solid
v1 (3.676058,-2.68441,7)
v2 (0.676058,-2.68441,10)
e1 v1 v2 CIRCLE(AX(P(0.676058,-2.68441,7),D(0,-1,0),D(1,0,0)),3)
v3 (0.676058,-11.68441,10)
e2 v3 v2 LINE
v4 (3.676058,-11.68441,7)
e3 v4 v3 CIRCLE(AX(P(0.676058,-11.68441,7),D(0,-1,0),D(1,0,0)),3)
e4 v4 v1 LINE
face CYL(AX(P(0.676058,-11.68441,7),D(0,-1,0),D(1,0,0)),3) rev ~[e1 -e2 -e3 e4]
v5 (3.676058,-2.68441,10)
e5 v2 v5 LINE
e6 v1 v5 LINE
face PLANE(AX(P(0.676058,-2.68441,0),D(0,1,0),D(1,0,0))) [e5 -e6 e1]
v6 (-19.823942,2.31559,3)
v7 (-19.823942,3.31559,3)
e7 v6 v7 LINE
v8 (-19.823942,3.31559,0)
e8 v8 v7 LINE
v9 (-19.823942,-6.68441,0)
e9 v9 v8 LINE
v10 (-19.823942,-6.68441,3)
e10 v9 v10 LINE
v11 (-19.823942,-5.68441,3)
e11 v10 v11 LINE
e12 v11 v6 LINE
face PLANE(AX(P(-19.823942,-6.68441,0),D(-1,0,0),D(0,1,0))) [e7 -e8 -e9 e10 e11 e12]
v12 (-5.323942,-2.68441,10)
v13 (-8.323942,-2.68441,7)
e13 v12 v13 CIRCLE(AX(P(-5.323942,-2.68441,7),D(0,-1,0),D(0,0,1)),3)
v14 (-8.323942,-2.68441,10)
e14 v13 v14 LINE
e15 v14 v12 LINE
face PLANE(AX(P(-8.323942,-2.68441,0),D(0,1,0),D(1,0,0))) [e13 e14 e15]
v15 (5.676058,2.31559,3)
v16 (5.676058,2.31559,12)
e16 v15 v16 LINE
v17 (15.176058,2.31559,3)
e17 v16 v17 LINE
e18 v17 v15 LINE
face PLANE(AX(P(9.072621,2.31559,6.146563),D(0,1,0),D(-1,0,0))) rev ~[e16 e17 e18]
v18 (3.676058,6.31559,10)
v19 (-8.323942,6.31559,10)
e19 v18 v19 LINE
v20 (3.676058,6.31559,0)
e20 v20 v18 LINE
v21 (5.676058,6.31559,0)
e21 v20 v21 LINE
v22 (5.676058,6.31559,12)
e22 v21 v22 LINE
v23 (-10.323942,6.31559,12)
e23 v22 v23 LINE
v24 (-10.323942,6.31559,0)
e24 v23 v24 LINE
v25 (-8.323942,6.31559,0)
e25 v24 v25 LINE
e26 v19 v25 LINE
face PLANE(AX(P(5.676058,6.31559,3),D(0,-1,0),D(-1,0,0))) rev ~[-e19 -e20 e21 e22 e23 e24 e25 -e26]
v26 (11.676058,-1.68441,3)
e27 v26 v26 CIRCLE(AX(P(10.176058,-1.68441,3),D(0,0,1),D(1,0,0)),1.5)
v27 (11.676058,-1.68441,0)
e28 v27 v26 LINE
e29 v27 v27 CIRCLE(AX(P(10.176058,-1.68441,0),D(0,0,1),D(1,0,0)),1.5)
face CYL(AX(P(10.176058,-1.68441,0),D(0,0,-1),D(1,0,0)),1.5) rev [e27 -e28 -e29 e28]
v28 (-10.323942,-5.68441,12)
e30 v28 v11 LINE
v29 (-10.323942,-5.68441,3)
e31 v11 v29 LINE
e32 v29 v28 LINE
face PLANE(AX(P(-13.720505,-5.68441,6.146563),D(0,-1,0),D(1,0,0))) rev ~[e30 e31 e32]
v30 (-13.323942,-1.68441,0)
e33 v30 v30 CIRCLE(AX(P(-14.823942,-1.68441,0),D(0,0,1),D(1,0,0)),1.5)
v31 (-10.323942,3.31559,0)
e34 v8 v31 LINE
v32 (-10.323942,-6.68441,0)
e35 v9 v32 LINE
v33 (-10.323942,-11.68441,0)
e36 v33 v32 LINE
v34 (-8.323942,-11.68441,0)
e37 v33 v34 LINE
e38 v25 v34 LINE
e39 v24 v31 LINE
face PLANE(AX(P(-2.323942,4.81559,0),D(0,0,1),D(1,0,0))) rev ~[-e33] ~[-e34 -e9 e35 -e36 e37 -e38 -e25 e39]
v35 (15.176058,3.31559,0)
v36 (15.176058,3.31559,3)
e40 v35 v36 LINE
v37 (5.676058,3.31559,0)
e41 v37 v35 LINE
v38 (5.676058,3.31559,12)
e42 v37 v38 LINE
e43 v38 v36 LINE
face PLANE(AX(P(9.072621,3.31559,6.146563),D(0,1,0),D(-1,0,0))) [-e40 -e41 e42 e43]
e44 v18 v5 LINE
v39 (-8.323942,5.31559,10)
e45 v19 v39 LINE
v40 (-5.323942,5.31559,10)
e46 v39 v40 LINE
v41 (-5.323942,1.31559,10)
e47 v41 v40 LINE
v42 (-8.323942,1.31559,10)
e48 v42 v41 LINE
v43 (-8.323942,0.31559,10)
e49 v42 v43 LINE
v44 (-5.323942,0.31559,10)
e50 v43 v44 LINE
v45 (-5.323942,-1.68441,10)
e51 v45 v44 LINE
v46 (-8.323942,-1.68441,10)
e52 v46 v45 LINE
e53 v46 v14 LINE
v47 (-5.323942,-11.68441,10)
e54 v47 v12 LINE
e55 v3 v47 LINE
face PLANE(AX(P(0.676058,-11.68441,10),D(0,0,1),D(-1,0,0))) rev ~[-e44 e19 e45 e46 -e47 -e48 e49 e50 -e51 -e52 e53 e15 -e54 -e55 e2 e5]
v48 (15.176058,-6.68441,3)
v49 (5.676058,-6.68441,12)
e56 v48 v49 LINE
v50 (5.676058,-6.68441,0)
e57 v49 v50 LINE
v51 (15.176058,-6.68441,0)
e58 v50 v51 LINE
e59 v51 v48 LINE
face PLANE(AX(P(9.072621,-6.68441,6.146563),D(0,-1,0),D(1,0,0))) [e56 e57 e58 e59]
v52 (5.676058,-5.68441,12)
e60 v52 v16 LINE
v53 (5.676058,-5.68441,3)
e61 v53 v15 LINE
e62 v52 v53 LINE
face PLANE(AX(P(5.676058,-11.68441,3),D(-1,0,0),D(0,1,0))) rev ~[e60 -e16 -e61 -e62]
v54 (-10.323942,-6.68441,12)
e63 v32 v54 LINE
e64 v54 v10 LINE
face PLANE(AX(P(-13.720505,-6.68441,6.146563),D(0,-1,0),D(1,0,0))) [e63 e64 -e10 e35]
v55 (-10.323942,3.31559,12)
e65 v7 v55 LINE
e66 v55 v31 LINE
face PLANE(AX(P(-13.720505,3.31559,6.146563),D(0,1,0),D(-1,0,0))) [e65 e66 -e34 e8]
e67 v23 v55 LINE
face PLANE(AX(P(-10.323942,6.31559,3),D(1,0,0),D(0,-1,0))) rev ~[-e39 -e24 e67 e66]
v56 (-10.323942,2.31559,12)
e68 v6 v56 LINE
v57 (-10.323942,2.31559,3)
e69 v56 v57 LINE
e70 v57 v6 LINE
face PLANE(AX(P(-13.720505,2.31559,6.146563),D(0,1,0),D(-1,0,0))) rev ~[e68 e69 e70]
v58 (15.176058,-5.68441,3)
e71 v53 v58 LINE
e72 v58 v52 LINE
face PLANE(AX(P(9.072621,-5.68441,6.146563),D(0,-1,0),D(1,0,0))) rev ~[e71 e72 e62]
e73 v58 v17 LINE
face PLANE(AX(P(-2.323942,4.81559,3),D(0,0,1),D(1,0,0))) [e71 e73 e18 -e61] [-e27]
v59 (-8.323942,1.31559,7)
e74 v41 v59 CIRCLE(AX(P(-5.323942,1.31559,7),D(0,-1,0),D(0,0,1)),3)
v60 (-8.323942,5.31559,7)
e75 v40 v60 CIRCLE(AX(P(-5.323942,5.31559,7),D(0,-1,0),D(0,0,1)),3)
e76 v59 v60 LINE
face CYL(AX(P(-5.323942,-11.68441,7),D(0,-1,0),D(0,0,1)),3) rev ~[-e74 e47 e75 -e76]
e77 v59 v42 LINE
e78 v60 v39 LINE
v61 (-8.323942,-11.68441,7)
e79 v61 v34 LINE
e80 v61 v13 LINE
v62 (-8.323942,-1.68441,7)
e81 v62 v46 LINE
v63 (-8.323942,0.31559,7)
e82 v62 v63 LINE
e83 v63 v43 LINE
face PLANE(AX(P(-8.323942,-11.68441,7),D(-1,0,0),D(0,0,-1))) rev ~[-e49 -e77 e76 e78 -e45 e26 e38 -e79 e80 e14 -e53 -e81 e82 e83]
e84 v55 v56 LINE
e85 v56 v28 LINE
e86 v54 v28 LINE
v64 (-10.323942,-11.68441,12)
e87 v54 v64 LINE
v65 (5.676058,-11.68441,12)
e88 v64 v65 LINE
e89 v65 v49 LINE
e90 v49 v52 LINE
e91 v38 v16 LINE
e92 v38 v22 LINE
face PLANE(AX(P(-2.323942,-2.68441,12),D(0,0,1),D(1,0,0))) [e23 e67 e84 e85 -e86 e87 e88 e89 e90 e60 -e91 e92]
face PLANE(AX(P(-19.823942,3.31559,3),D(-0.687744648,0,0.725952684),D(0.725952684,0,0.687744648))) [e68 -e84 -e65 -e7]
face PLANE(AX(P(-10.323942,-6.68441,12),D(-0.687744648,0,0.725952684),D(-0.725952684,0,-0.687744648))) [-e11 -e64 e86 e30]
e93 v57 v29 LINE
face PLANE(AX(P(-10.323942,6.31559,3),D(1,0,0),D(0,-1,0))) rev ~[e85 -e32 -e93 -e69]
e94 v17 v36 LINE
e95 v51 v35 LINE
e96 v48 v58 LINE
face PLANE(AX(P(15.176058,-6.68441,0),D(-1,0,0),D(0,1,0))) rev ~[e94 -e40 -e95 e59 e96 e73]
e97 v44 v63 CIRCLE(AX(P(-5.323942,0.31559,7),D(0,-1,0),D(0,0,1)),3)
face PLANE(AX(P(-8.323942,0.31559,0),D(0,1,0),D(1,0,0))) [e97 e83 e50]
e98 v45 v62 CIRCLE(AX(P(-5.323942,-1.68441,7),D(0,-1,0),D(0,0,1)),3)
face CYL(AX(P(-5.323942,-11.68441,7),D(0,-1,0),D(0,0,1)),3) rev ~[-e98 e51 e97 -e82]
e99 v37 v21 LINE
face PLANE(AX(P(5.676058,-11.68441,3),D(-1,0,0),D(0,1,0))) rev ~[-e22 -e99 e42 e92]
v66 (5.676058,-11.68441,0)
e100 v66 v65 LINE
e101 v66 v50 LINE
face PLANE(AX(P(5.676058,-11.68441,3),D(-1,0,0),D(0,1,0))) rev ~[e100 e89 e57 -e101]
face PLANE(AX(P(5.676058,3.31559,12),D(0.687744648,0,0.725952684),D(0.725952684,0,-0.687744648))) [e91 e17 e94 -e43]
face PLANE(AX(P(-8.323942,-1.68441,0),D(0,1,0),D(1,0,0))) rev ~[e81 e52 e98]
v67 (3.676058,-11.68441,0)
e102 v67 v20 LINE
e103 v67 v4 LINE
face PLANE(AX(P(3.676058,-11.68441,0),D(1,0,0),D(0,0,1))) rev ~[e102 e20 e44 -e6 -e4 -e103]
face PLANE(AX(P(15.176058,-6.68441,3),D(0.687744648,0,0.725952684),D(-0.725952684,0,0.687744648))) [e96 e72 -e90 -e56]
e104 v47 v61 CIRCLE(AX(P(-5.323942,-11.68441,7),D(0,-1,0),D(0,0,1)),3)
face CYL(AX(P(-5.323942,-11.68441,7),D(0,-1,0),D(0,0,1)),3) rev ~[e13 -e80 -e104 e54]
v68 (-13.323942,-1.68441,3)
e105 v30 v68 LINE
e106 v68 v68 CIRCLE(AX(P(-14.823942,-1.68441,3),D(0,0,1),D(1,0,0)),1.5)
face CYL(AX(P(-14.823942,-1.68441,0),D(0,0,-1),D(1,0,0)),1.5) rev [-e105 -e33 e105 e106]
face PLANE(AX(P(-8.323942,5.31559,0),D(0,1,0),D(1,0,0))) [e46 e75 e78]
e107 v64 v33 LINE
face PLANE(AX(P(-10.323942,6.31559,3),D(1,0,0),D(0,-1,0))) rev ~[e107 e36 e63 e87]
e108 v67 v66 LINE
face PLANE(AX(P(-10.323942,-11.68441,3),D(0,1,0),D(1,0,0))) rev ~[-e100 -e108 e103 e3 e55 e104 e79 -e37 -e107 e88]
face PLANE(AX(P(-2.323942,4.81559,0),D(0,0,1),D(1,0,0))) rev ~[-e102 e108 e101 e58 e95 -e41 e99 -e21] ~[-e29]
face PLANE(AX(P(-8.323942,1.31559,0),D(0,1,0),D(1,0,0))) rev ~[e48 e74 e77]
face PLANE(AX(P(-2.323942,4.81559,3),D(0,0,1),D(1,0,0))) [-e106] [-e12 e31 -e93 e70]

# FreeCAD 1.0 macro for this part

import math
import FreeCAD as App
import Part
import Sketcher

V = App.Vector
Q = App.Units.Quantity


def add_polygon(sketch, points):
    """Adds a closed chain of lines whose ends are joined by coincident constraints."""
    first, n = sketch.GeometryCount, len(points)
    for a, b in zip(points, points[1:] + points[:1]):
        sketch.addGeometry(Part.LineSegment(App.Vector(*a, 0), App.Vector(*b, 0)), False)
    for i in range(n):
        sketch.addConstraint(Sketcher.Constraint("Coincident", first + i, 2, first + (i + 1) % n, 1))

doc = App.newDocument("Part")
body = doc.addObject("PartDesign::Body", "Body")

# Sketch on XY plane
sketch1 = body.newObject("Sketcher::SketchObject", "Sketch")
sketch1.AttachmentSupport = (doc.getObject("XY_Plane"), [""])
sketch1.MapMode = "FlatFace"
add_polygon(sketch1, [(-10.3, 6.3), (-10.3, 3.3), (-19.8, 3.3), (-19.8, -6.7), (-10.3, -6.7), (-10.3, -11.7), (5.7, -11.7), (5.7, -6.7), (15.2, -6.7), (15.2, 3.3), (5.7, 3.3), (5.7, 6.3)])  # lines 0-11
sketch1.addGeometry(Part.Circle(V(-14.8, -1.7, 0), V(0, 0, 1), 1.5), False)  # 12
sketch1.addGeometry(Part.Circle(V(10.2, -1.7, 0), V(0, 0, 1), 1.5), False)  # 13
sketch1.addConstraint([
    Sketcher.Constraint("Vertical", 0),
    Sketcher.Constraint("Horizontal", 1),
    Sketcher.Constraint("Vertical", 2),
    Sketcher.Constraint("Horizontal", 3),
    Sketcher.Constraint("Vertical", 4),
    Sketcher.Constraint("Horizontal", 5),
    Sketcher.Constraint("Vertical", 6),
    Sketcher.Constraint("Horizontal", 7),
    Sketcher.Constraint("Vertical", 8),
    Sketcher.Constraint("Horizontal", 9),
    Sketcher.Constraint("Vertical", 10),
    Sketcher.Constraint("Horizontal", 11),
    Sketcher.Constraint("Equal", 12, 13),
    Sketcher.Constraint("Horizontal", 12, 3, 13, 3),
    Sketcher.Constraint("Horizontal", 3, 2, 6, 2),
    Sketcher.Constraint("Horizontal", 1, 2, 8, 2),
    Sketcher.Constraint("Vertical", 0, 2, 3, 2),
    Sketcher.Constraint("Vertical", 6, 2, 9, 2),
    Sketcher.Constraint("Equal", 3, 7),
    Sketcher.Constraint("Diameter", 12, Q("3 mm")),
    Sketcher.Constraint("DistanceX", 5, 1, 5, 2, Q("16 mm")),
    Sketcher.Constraint("DistanceY", 0, 2, 0, 1, Q("3 mm")),
    Sketcher.Constraint("DistanceY", 2, 2, 2, 1, Q("10 mm")),
    Sketcher.Constraint("DistanceY", 4, 2, 4, 1, Q("5 mm")),
    Sketcher.Constraint("DistanceX", 1, 2, 1, 1, Q("9.5 mm")),
    Sketcher.Constraint("DistanceX", 12, 3, 13, 3, Q("25 mm")),
    Sketcher.Constraint("DistanceY", 12, 3, 0, 2, Q("5 mm")),
    Sketcher.Constraint("DistanceX", 1, 2, 12, 3, Q("5 mm")),
    Sketcher.Constraint("DistanceY", 12, 3, -1, 1, Q("1.68441 mm")),
    Sketcher.Constraint("DistanceX", 12, 3, -1, 1, Q("14.823942 mm")),
])
pad1 = body.newObject("PartDesign::Pad", "Pad")
pad1.Profile = sketch1
pad1.Length = 3

# Sketch on XY plane
sketch2 = body.newObject("Sketcher::SketchObject", "Sketch001")
sketch2.AttachmentSupport = (doc.getObject("XY_Plane"), [""])
sketch2.MapMode = "FlatFace"
sketch2.AttachmentOffset = App.Placement(V(0, 0, 3), App.Rotation())
add_polygon(sketch2, [(-10, -12), (6, -12), (6, 6), (-10, 6)])  # lines 0-3
sketch2.addConstraint([
    Sketcher.Constraint("Horizontal", 0),
    Sketcher.Constraint("Vertical", 1),
    Sketcher.Constraint("Horizontal", 2),
    Sketcher.Constraint("Vertical", 3),
    Sketcher.Constraint("DistanceX", 0, 1, 0, 2, Q("16 mm")),
    Sketcher.Constraint("DistanceY", 1, 1, 1, 2, Q("18 mm")),
    Sketcher.Constraint("DistanceY", 0, 2, -1, 1, Q("11.68441 mm")),
    Sketcher.Constraint("DistanceX", -1, 1, 0, 2, Q("5.676058 mm")),
])
pad2 = body.newObject("PartDesign::Pad", "Pad001")
pad2.Profile = sketch2
pad2.Length = 9

# Sketch on XZ plane
sketch3 = body.newObject("Sketcher::SketchObject", "Sketch002")
sketch3.AttachmentSupport = (doc.getObject("XZ_Plane"), [""])
sketch3.MapMode = "FlatFace"
sketch3.AttachmentOffset = App.Placement(V(0, 0, 11.68441), App.Rotation())
sketch3.addGeometry([
    Part.ArcOfCircle(Part.Circle(V(-5.3, 7, 0), V(0, 0, 1), 3), math.radians(90), math.radians(180)),  # 0
    Part.LineSegment(V(-8.3, 7, 0), V(-8.3, 0, 0)),  # 1
    Part.LineSegment(V(-8.3, 0, 0), V(3.7, 0, 0)),  # 2
    Part.LineSegment(V(3.7, 0, 0), V(3.7, 7, 0)),  # 3
    Part.ArcOfCircle(Part.Circle(V(0.7, 7, 0), V(0, 0, 1), 3), math.radians(0), math.radians(90)),  # 4
    Part.LineSegment(V(0.7, 10, 0), V(-5.3, 10, 0)),  # 5
], False)
sketch3.addConstraint([
    Sketcher.Constraint("Tangent", 0, 2, 1, 1),
    Sketcher.Constraint("Coincident", 1, 2, 2, 1),
    Sketcher.Constraint("Coincident", 2, 2, 3, 1),
    Sketcher.Constraint("Tangent", 3, 2, 4, 1),
    Sketcher.Constraint("Tangent", 4, 2, 5, 1),
    Sketcher.Constraint("Tangent", 5, 2, 0, 1),
    Sketcher.Constraint("Vertical", 1),
    Sketcher.Constraint("Horizontal", 2),
    Sketcher.Constraint("Vertical", 3),
    Sketcher.Constraint("Horizontal", 5),
    Sketcher.Constraint("Equal", 0, 4),
    Sketcher.Constraint("PointOnObject", 1, 2, -1),
    Sketcher.Constraint("Radius", 0, Q("3 mm")),
    Sketcher.Constraint("DistanceX", 2, 1, 2, 2, Q("12 mm")),
    Sketcher.Constraint("DistanceY", 1, 2, 1, 1, Q("7 mm")),
    Sketcher.Constraint("DistanceX", 0, 3, -1, 1, Q("5.323942 mm")),
])
pocket1 = body.newObject("PartDesign::Pocket", "Pocket")
pocket1.Profile = sketch3
pocket1.Type = "ThroughAll"

# Sketch on XZ plane
sketch4 = body.newObject("Sketcher::SketchObject", "Sketch003")
sketch4.AttachmentSupport = (doc.getObject("XZ_Plane"), [""])
sketch4.MapMode = "FlatFace"
sketch4.AttachmentOffset = App.Placement(V(0, 0, 6.68441), App.Rotation())
add_polygon(sketch4, [(-10, 12), (-20, 3), (-10, 3)])  # lines 0-2
sketch4.addConstraint([
    Sketcher.Constraint("Horizontal", 1),
    Sketcher.Constraint("Vertical", 2),
    Sketcher.Constraint("DistanceY", 2, 1, 2, 2, Q("9 mm")),
    Sketcher.Constraint("DistanceX", 1, 1, 1, 2, Q("9.5 mm")),
    Sketcher.Constraint("DistanceY", -1, 1, 0, 2, Q("3 mm")),
    Sketcher.Constraint("DistanceX", 0, 2, -1, 1, Q("19.823942 mm")),
])
pad3 = body.newObject("PartDesign::Pad", "Pad002")
pad3.Profile = sketch4
pad3.Length = 1
pad3.Reversed = True

# Sketch on XZ plane
sketch5 = body.newObject("Sketcher::SketchObject", "Sketch004")
sketch5.AttachmentSupport = (doc.getObject("XZ_Plane"), [""])
sketch5.MapMode = "FlatFace"
sketch5.AttachmentOffset = App.Placement(V(0, 0, -3.31559), App.Rotation())
add_polygon(sketch5, [(-10, 3), (-20, 3), (-10, 12)])  # lines 0-2
sketch5.addConstraint([
    Sketcher.Constraint("Horizontal", 0),
    Sketcher.Constraint("Vertical", 2),
    Sketcher.Constraint("DistanceY", 2, 2, 2, 1, Q("9 mm")),
    Sketcher.Constraint("DistanceX", 0, 2, 0, 1, Q("9.5 mm")),
    Sketcher.Constraint("DistanceY", -1, 1, 0, 2, Q("3 mm")),
    Sketcher.Constraint("DistanceX", 0, 2, -1, 1, Q("19.823942 mm")),
])
pad4 = body.newObject("PartDesign::Pad", "Pad003")
pad4.Profile = sketch5
pad4.Length = 1

# Sketch on XZ plane
sketch6 = body.newObject("Sketcher::SketchObject", "Sketch005")
sketch6.AttachmentSupport = (doc.getObject("XZ_Plane"), [""])
sketch6.MapMode = "FlatFace"
sketch6.AttachmentOffset = App.Placement(V(0, 0, -3.31559), App.Rotation())
add_polygon(sketch6, [(6, 12), (15, 3), (6, 3)])  # lines 0-2
sketch6.addConstraint([
    Sketcher.Constraint("Horizontal", 1),
    Sketcher.Constraint("Vertical", 2),
    Sketcher.Constraint("DistanceY", 2, 1, 2, 2, Q("9 mm")),
    Sketcher.Constraint("DistanceX", 1, 2, 1, 1, Q("9.5 mm")),
    Sketcher.Constraint("DistanceY", -1, 1, 0, 2, Q("3 mm")),
    Sketcher.Constraint("DistanceX", -1, 1, 0, 2, Q("15.176058 mm")),
])
pad5 = body.newObject("PartDesign::Pad", "Pad004")
pad5.Profile = sketch6
pad5.Length = 1

# Sketch on XZ plane
sketch7 = body.newObject("Sketcher::SketchObject", "Sketch006")
sketch7.AttachmentSupport = (doc.getObject("XZ_Plane"), [""])
sketch7.MapMode = "FlatFace"
sketch7.AttachmentOffset = App.Placement(V(0, 0, 6.68441), App.Rotation())
add_polygon(sketch7, [(6, 3), (15, 3), (6, 12)])  # lines 0-2
sketch7.addConstraint([
    Sketcher.Constraint("Horizontal", 0),
    Sketcher.Constraint("Vertical", 2),
    Sketcher.Constraint("DistanceY", 2, 2, 2, 1, Q("9 mm")),
    Sketcher.Constraint("DistanceX", 0, 1, 0, 2, Q("9.5 mm")),
    Sketcher.Constraint("DistanceY", -1, 1, 0, 2, Q("3 mm")),
    Sketcher.Constraint("DistanceX", -1, 1, 0, 2, Q("15.176058 mm")),
])
pad6 = body.newObject("PartDesign::Pad", "Pad005")
pad6.Profile = sketch7
pad6.Length = 1
pad6.Reversed = True

# Sketch on XY plane
sketch8 = body.newObject("Sketcher::SketchObject", "Sketch007")
sketch8.AttachmentSupport = (doc.getObject("XY_Plane"), [""])
sketch8.MapMode = "FlatFace"
add_polygon(sketch8, [(-8.3, 0.3), (-8.3, 1.3), (-5.3, 1.3), (-5.3, 0.3)])  # lines 0-3
add_polygon(sketch8, [(-8.3, 5.3), (-8.3, 6.3), (-5.3, 6.3), (-5.3, 5.3)])  # lines 4-7
add_polygon(sketch8, [(0.7, -2.7), (0.7, 6.3), (3.7, 6.3), (3.7, -2.7)])  # lines 8-11
add_polygon(sketch8, [(-8.3, -2.7), (-8.3, -1.7), (-5.3, -1.7), (-5.3, -2.7)])  # lines 12-15
sketch8.addConstraint([
    Sketcher.Constraint("Vertical", 0),
    Sketcher.Constraint("Horizontal", 1),
    Sketcher.Constraint("Vertical", 2),
    Sketcher.Constraint("Horizontal", 3),
    Sketcher.Constraint("Vertical", 4),
    Sketcher.Constraint("Horizontal", 5),
    Sketcher.Constraint("Vertical", 6),
    Sketcher.Constraint("Horizontal", 7),
    Sketcher.Constraint("Vertical", 8),
    Sketcher.Constraint("Horizontal", 9),
    Sketcher.Constraint("Vertical", 10),
    Sketcher.Constraint("Horizontal", 11),
    Sketcher.Constraint("Vertical", 12),
    Sketcher.Constraint("Horizontal", 13),
    Sketcher.Constraint("Vertical", 14),
    Sketcher.Constraint("Horizontal", 15),
    Sketcher.Constraint("Horizontal", 5, 2, 8, 2),
    Sketcher.Constraint("Horizontal", 11, 2, 14, 2),
    Sketcher.Constraint("Vertical", 3, 2, 4, 2),
    Sketcher.Constraint("Vertical", 2, 2, 5, 2),
    Sketcher.Constraint("Vertical", 7, 2, 12, 2),
    Sketcher.Constraint("Vertical", 6, 2, 13, 2),
    Sketcher.Constraint("Equal", 7, 9),
    Sketcher.Constraint("Equal", 2, 4),
    Sketcher.Constraint("Equal", 6, 12),
    Sketcher.Constraint("DistanceX", 1, 1, 1, 2, Q("3 mm")),
    Sketcher.Constraint("DistanceY", 0, 1, 0, 2, Q("1 mm")),
    Sketcher.Constraint("DistanceY", 8, 1, 8, 2, Q("9 mm")),
    Sketcher.Constraint("DistanceY", 0, 2, 4, 2, Q("5 mm")),
    Sketcher.Constraint("DistanceX", 5, 2, 8, 2, Q("6 mm")),
    Sketcher.Constraint("DistanceY", -1, 1, 0, 2, Q("1.31559 mm")),
    Sketcher.Constraint("DistanceX", 0, 2, -1, 1, Q("8.323942 mm")),
])
pocket2 = body.newObject("PartDesign::Pocket", "Pocket001")
pocket2.Profile = sketch8
pocket2.Length = 10
pocket2.Reversed = True

doc.recompute()
